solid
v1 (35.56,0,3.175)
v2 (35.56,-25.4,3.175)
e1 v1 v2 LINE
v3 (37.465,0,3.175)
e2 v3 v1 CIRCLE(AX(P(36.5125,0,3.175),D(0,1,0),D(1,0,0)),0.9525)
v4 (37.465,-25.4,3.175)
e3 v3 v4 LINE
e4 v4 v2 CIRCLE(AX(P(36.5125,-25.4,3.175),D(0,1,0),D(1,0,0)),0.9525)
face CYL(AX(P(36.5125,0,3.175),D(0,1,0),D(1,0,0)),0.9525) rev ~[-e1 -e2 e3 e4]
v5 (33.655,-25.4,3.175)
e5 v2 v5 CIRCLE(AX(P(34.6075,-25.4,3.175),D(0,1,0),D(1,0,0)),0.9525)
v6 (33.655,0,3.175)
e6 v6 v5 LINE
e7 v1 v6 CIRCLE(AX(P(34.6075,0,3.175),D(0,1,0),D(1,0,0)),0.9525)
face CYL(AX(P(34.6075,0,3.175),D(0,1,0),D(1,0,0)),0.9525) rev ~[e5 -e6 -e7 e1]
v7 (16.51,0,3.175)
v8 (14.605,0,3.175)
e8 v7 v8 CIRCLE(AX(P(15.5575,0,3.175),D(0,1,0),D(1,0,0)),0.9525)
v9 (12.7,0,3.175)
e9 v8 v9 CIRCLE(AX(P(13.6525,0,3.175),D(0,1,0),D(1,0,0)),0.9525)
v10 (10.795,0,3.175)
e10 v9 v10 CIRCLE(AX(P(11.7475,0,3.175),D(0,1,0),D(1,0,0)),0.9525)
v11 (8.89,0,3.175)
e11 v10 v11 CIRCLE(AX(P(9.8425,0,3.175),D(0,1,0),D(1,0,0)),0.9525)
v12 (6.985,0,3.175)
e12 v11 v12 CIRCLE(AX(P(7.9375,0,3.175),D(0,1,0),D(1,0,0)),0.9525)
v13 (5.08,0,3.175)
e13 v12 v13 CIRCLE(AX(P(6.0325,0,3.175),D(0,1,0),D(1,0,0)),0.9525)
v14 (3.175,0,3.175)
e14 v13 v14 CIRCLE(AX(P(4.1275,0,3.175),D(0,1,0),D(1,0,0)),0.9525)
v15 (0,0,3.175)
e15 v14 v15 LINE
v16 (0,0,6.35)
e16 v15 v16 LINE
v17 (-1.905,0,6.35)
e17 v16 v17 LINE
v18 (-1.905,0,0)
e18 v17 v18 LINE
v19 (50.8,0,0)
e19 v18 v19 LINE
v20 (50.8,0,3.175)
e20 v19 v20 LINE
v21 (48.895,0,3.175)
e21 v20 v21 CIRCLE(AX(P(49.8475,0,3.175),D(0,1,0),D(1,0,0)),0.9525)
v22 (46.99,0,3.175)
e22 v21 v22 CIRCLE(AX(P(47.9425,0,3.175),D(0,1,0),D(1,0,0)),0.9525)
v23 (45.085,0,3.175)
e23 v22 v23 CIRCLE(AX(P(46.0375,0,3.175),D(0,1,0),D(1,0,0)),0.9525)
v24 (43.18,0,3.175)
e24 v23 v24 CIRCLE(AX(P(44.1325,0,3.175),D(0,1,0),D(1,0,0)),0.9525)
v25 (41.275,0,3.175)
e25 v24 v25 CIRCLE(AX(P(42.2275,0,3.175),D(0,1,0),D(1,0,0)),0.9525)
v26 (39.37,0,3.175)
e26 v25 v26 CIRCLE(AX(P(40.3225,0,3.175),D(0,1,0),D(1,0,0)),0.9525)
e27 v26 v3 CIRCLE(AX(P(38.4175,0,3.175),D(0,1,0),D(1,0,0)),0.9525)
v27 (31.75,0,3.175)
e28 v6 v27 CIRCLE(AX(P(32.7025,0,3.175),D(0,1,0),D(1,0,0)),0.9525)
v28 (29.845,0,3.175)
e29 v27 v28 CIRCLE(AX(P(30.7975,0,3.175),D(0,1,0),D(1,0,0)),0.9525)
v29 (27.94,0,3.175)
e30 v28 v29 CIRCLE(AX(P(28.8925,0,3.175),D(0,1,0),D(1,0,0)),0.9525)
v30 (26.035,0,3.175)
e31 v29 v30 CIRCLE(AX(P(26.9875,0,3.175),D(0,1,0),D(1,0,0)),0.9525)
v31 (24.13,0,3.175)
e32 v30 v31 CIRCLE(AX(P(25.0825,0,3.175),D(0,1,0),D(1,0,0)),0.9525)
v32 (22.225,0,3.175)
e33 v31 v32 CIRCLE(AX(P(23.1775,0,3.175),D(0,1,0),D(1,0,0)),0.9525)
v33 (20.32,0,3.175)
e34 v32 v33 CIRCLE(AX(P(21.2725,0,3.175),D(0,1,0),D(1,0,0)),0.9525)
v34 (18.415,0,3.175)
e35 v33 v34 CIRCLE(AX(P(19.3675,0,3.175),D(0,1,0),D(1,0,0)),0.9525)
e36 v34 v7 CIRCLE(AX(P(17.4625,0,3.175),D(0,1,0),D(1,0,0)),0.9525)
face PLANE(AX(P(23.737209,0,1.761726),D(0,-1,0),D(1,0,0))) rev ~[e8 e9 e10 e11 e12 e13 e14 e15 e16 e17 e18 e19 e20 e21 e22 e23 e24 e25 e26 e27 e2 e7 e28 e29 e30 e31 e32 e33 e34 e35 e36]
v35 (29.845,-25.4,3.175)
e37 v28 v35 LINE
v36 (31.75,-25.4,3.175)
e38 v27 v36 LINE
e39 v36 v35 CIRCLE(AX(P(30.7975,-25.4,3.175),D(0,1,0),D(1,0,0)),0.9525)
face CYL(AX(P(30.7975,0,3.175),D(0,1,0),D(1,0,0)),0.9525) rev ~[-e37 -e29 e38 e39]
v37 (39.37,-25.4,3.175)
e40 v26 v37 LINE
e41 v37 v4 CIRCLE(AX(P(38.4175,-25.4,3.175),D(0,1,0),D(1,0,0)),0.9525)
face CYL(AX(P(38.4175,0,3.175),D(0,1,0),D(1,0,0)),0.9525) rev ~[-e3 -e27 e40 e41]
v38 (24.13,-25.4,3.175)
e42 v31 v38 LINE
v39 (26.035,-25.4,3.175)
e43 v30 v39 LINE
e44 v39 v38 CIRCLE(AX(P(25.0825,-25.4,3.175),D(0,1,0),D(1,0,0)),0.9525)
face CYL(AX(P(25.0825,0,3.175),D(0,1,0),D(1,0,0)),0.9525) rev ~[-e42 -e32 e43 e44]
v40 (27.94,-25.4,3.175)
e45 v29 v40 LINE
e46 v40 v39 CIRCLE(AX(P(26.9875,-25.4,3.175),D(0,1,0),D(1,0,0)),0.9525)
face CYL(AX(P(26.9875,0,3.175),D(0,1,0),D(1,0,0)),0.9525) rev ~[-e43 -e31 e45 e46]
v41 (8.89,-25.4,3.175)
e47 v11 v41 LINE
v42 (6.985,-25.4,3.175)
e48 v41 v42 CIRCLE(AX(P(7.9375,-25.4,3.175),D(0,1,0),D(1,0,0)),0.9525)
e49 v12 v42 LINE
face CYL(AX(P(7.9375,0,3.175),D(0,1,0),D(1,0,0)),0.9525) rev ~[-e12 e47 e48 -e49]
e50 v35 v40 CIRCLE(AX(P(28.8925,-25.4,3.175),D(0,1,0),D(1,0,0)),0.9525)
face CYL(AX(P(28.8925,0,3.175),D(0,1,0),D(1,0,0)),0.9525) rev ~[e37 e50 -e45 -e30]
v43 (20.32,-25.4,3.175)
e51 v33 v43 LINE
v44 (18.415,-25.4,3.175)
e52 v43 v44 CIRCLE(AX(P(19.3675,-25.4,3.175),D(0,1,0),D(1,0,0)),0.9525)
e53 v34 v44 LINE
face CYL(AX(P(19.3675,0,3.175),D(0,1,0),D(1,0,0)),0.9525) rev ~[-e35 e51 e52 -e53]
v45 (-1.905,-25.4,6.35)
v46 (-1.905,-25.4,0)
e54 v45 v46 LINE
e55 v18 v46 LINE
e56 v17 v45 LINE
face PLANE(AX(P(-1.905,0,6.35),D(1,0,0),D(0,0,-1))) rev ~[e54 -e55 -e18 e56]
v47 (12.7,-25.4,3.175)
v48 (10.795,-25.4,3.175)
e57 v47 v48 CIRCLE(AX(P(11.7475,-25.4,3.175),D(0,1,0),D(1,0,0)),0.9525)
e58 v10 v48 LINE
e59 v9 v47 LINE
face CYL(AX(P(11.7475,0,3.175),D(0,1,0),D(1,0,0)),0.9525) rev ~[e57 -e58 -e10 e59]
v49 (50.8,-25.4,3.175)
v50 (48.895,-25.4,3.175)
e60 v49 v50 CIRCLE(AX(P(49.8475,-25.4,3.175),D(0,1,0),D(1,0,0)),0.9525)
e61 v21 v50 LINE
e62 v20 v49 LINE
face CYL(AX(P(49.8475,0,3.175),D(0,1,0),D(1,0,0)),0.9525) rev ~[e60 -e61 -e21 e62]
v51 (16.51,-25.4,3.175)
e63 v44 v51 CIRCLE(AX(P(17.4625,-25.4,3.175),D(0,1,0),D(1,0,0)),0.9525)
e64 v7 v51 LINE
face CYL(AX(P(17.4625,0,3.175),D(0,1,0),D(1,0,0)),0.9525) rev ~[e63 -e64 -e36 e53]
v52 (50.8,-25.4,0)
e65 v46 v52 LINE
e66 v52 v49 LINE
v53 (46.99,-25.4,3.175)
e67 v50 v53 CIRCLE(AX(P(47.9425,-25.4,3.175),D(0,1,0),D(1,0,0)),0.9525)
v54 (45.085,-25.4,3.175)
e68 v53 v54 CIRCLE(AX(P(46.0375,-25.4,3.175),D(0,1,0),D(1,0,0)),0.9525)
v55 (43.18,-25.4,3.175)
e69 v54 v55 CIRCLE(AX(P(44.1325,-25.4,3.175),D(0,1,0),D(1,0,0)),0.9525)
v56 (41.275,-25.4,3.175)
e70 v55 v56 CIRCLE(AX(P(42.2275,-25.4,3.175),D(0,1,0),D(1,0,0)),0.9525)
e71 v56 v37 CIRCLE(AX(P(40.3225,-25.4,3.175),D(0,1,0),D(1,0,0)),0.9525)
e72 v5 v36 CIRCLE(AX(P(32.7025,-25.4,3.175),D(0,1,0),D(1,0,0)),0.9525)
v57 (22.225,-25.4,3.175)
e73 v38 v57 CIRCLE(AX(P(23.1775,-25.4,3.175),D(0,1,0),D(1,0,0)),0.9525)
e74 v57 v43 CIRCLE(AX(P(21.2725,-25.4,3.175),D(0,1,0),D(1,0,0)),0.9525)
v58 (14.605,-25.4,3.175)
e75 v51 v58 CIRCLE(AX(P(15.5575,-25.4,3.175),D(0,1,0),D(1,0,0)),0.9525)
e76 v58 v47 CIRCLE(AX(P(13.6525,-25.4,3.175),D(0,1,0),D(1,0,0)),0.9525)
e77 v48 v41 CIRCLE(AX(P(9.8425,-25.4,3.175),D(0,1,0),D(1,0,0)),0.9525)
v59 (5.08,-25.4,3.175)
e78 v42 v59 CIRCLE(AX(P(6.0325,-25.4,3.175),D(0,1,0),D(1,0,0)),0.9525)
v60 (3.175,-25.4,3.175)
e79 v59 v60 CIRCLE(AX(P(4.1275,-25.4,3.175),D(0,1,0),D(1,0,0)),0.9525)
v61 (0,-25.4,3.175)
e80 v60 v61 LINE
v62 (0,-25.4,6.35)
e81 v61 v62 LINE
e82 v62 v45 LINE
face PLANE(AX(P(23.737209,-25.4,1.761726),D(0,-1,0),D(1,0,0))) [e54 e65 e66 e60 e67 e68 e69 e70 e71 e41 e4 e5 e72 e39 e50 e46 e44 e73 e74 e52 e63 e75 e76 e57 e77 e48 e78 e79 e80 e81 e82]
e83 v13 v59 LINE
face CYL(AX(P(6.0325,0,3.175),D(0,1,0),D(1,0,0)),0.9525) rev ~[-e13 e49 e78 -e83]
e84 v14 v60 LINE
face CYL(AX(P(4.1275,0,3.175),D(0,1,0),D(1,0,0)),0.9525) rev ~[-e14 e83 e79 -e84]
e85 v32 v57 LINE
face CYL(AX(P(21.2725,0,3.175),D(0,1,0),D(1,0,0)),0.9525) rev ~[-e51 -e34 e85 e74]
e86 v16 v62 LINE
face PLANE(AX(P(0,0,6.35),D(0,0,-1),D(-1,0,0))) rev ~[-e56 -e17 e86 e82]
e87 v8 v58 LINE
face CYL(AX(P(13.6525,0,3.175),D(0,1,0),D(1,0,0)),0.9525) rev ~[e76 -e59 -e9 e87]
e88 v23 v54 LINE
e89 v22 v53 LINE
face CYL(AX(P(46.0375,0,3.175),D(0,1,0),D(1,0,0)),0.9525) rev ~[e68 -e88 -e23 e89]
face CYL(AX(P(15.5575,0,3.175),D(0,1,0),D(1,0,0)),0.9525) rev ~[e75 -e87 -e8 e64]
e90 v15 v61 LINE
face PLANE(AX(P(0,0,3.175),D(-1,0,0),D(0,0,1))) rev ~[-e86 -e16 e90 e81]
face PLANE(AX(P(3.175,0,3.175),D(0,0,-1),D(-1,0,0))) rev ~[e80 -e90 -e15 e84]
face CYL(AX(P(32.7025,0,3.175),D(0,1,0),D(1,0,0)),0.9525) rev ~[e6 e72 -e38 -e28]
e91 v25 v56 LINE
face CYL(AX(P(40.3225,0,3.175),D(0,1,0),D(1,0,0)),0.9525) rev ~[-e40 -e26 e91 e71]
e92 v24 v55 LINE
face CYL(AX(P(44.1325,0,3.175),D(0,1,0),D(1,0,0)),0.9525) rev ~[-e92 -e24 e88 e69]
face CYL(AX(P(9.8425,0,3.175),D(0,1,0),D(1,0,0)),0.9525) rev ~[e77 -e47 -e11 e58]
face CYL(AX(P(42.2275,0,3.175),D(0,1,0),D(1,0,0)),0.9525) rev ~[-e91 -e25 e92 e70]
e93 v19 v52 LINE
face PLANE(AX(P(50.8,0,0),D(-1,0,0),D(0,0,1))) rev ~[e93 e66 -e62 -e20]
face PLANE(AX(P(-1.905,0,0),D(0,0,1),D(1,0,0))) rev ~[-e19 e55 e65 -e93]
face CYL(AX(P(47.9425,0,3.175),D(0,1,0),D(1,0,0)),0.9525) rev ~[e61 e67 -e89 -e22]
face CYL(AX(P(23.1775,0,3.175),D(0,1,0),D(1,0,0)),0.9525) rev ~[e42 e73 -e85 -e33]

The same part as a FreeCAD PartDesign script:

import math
import FreeCAD as App
import Part
import Sketcher
from FreeCAD import Vector
Q = App.Units.Quantity

doc = App.newDocument("Part")
body = doc.addObject("PartDesign::Body", "Body")

# Sketch on XZ plane
sketch1 = body.newObject("Sketcher::SketchObject", "Sketch")
sketch1.AttachmentSupport = (doc.getObject("XZ_Plane"), [""])
sketch1.MapMode = "FlatFace"
sketch1.addGeometry([
    Part.LineSegment(Vector(-1.9, 0, 0), Vector(50.8, 0, 0)),  # 0
    Part.LineSegment(Vector(50.8, 0, 0), Vector(50.8, 3.2, 0)),  # 1
    Part.ArcOfCircle(Part.Circle(Vector(49.8, 3.2, 0), Vector(0, 0, 1), 1), math.radians(180), math.radians(360)),  # 2
    Part.ArcOfCircle(Part.Circle(Vector(47.9, 3.2, 0), Vector(0, 0, 1), 1), math.radians(180), math.radians(360)),  # 3
    Part.ArcOfCircle(Part.Circle(Vector(46, 3.2, 0), Vector(0, 0, 1), 1), math.radians(180), math.radians(360)),  # 4
    Part.ArcOfCircle(Part.Circle(Vector(44.1, 3.2, 0), Vector(0, 0, 1), 1), math.radians(180), math.radians(360)),  # 5
    Part.ArcOfCircle(Part.Circle(Vector(42.2, 3.2, 0), Vector(0, 0, 1), 1), math.radians(180), math.radians(360)),  # 6
    Part.ArcOfCircle(Part.Circle(Vector(40.3, 3.2, 0), Vector(0, 0, 1), 1), math.radians(180), math.radians(360)),  # 7
    Part.ArcOfCircle(Part.Circle(Vector(38.4, 3.2, 0), Vector(0, 0, 1), 1), math.radians(180), math.radians(360)),  # 8
    Part.ArcOfCircle(Part.Circle(Vector(36.5, 3.2, 0), Vector(0, 0, 1), 1), math.radians(180), math.radians(360)),  # 9
    Part.ArcOfCircle(Part.Circle(Vector(34.6, 3.2, 0), Vector(0, 0, 1), 1), math.radians(180), math.radians(360)),  # 10
    Part.ArcOfCircle(Part.Circle(Vector(32.7, 3.2, 0), Vector(0, 0, 1), 1), math.radians(180), math.radians(360)),  # 11
    Part.ArcOfCircle(Part.Circle(Vector(30.8, 3.2, 0), Vector(0, 0, 1), 1), math.radians(180), math.radians(360)),  # 12
    Part.ArcOfCircle(Part.Circle(Vector(28.9, 3.2, 0), Vector(0, 0, 1), 1), math.radians(180), math.radians(360)),  # 13
    Part.ArcOfCircle(Part.Circle(Vector(27, 3.2, 0), Vector(0, 0, 1), 1), math.radians(180), math.radians(360)),  # 14
    Part.ArcOfCircle(Part.Circle(Vector(25.1, 3.2, 0), Vector(0, 0, 1), 1), math.radians(180), math.radians(360)),  # 15
    Part.ArcOfCircle(Part.Circle(Vector(23.2, 3.2, 0), Vector(0, 0, 1), 1), math.radians(180), math.radians(360)),  # 16
    Part.ArcOfCircle(Part.Circle(Vector(21.3, 3.2, 0), Vector(0, 0, 1), 1), math.radians(180), math.radians(360)),  # 17
    Part.ArcOfCircle(Part.Circle(Vector(19.4, 3.2, 0), Vector(0, 0, 1), 1), math.radians(180), math.radians(360)),  # 18
    Part.ArcOfCircle(Part.Circle(Vector(17.5, 3.2, 0), Vector(0, 0, 1), 1), math.radians(180), math.radians(360)),  # 19
    Part.ArcOfCircle(Part.Circle(Vector(15.6, 3.2, 0), Vector(0, 0, 1), 1), math.radians(180), math.radians(360)),  # 20
    Part.ArcOfCircle(Part.Circle(Vector(13.7, 3.2, 0), Vector(0, 0, 1), 1), math.radians(180), math.radians(360)),  # 21
    Part.ArcOfCircle(Part.Circle(Vector(11.7, 3.2, 0), Vector(0, 0, 1), 1), math.radians(180), math.radians(360)),  # 22
    Part.ArcOfCircle(Part.Circle(Vector(9.8, 3.2, 0), Vector(0, 0, 1), 1), math.radians(180), math.radians(360)),  # 23
    Part.ArcOfCircle(Part.Circle(Vector(7.9, 3.2, 0), Vector(0, 0, 1), 1), math.radians(180), math.radians(360)),  # 24
    Part.ArcOfCircle(Part.Circle(Vector(6, 3.2, 0), Vector(0, 0, 1), 1), math.radians(180), math.radians(360)),  # 25
    Part.ArcOfCircle(Part.Circle(Vector(4.1, 3.2, 0), Vector(0, 0, 1), 1), math.radians(180), math.radians(360)),  # 26
    Part.LineSegment(Vector(3.2, 3.2, 0), Vector(0, 3.2, 0)),  # 27
    Part.LineSegment(Vector(0, 3.2, 0), Vector(0, 6.3, 0)),  # 28
    Part.LineSegment(Vector(0, 6.3, 0), Vector(-1.9, 6.3, 0)),  # 29
    Part.LineSegment(Vector(-1.9, 6.3, 0), Vector(-1.9, 0, 0)),  # 30
], False)
sketch1.addConstraint([
    Sketcher.Constraint("Coincident", 0, 2, 1, 1),
    Sketcher.Constraint("Tangent", 1, 2, 2, 2),
    Sketcher.Constraint("Tangent", 2, 1, 3, 2),
    Sketcher.Constraint("Tangent", 3, 1, 4, 2),
    Sketcher.Constraint("Tangent", 4, 1, 5, 2),
    Sketcher.Constraint("Tangent", 5, 1, 6, 2),
    Sketcher.Constraint("Tangent", 6, 1, 7, 2),
    Sketcher.Constraint("Tangent", 7, 1, 8, 2),
    Sketcher.Constraint("Tangent", 8, 1, 9, 2),
    Sketcher.Constraint("Tangent", 9, 1, 10, 2),
    Sketcher.Constraint("Tangent", 10, 1, 11, 2),
    Sketcher.Constraint("Tangent", 11, 1, 12, 2),
    Sketcher.Constraint("Tangent", 12, 1, 13, 2),
    Sketcher.Constraint("Tangent", 13, 1, 14, 2),
    Sketcher.Constraint("Tangent", 14, 1, 15, 2),
    Sketcher.Constraint("Tangent", 15, 1, 16, 2),
    Sketcher.Constraint("Tangent", 16, 1, 17, 2),
    Sketcher.Constraint("Tangent", 17, 1, 18, 2),
    Sketcher.Constraint("Tangent", 18, 1, 19, 2),
    Sketcher.Constraint("Tangent", 19, 1, 20, 2),
    Sketcher.Constraint("Tangent", 20, 1, 21, 2),
    Sketcher.Constraint("Tangent", 21, 1, 22, 2),
    Sketcher.Constraint("Tangent", 22, 1, 23, 2),
    Sketcher.Constraint("Tangent", 23, 1, 24, 2),
    Sketcher.Constraint("Tangent", 24, 1, 25, 2),
    Sketcher.Constraint("Tangent", 25, 1, 26, 2),
    Sketcher.Constraint("Coincident", 26, 1, 27, 1),
    Sketcher.Constraint("Coincident", 27, 2, 28, 1),
    Sketcher.Constraint("Coincident", 28, 2, 29, 1),
    Sketcher.Constraint("Coincident", 29, 2, 30, 1),
    Sketcher.Constraint("Coincident", 30, 2, 0, 1),
    Sketcher.Constraint("Horizontal", 0),
    Sketcher.Constraint("Vertical", 1),
    Sketcher.Constraint("Horizontal", 27),
    Sketcher.Constraint("Vertical", 28),
    Sketcher.Constraint("Horizontal", 29),
    Sketcher.Constraint("Vertical", 30),
    Sketcher.Constraint("Equal", 2, 3),
    Sketcher.Constraint("Equal", 3, 4),
    Sketcher.Constraint("Equal", 4, 5),
    Sketcher.Constraint("Equal", 5, 6),
    Sketcher.Constraint("Equal", 6, 7),
    Sketcher.Constraint("Equal", 7, 8),
    Sketcher.Constraint("Equal", 8, 9),
    Sketcher.Constraint("Equal", 9, 10),
    Sketcher.Constraint("Equal", 10, 11),
    Sketcher.Constraint("Equal", 11, 12),
    Sketcher.Constraint("Equal", 12, 13),
    Sketcher.Constraint("Equal", 13, 14),
    Sketcher.Constraint("Equal", 14, 15),
    Sketcher.Constraint("Equal", 15, 16),
    Sketcher.Constraint("Equal", 16, 17),
    Sketcher.Constraint("Equal", 17, 18),
    Sketcher.Constraint("Equal", 18, 19),
    Sketcher.Constraint("Equal", 19, 20),
    Sketcher.Constraint("Equal", 20, 21),
    Sketcher.Constraint("Equal", 21, 22),
    Sketcher.Constraint("Equal", 22, 23),
    Sketcher.Constraint("Equal", 23, 24),
    Sketcher.Constraint("Equal", 24, 25),
    Sketcher.Constraint("Equal", 25, 26),
    Sketcher.Constraint("PointOnObject", 0, 2, -1),
    Sketcher.Constraint("PointOnObject", 27, 2, -2),
    Sketcher.Constraint("Horizontal", 2, 3, 3, 3),
    Sketcher.Constraint("Horizontal", 3, 3, 4, 3),
    Sketcher.Constraint("Horizontal", 4, 3, 5, 3),
    Sketcher.Constraint("Horizontal", 5, 3, 6, 3),
    Sketcher.Constraint("Horizontal", 6, 3, 7, 3),
    Sketcher.Constraint("Horizontal", 7, 3, 8, 3),
    Sketcher.Constraint("Horizontal", 8, 3, 9, 3),
    Sketcher.Constraint("Horizontal", 9, 3, 10, 3),
    Sketcher.Constraint("Horizontal", 10, 3, 11, 3),
    Sketcher.Constraint("Horizontal", 11, 3, 12, 3),
    Sketcher.Constraint("Horizontal", 12, 3, 13, 3),
    Sketcher.Constraint("Horizontal", 13, 3, 14, 3),
    Sketcher.Constraint("Horizontal", 14, 3, 15, 3),
    Sketcher.Constraint("Horizontal", 15, 3, 16, 3),
    Sketcher.Constraint("Horizontal", 16, 3, 17, 3),
    Sketcher.Constraint("Horizontal", 17, 3, 18, 3),
    Sketcher.Constraint("Horizontal", 18, 3, 19, 3),
    Sketcher.Constraint("Horizontal", 19, 3, 20, 3),
    Sketcher.Constraint("Horizontal", 20, 3, 21, 3),
    Sketcher.Constraint("Horizontal", 21, 3, 22, 3),
    Sketcher.Constraint("Horizontal", 22, 3, 23, 3),
    Sketcher.Constraint("Horizontal", 23, 3, 24, 3),
    Sketcher.Constraint("Horizontal", 24, 3, 25, 3),
    Sketcher.Constraint("Horizontal", 25, 3, 26, 3),
    Sketcher.Constraint("Horizontal", 25, 1, 26, 1),
    Sketcher.Constraint("Equal", 27, 1),
    Sketcher.Constraint("Equal", 1, 28),
    Sketcher.Constraint("DistanceX", -1, 1, 0, 2, Q("2 in")),
    Sketcher.Constraint("DistanceY", 30, 2, 30, 1, Q("0.25 in")),
    Sketcher.Constraint("DistanceX", 29, 2, 26, 1, Q("0.2 in")),
])
pad1 = body.newObject("PartDesign::Pad", "Pad")
pad1.Profile = sketch1
pad1.Length = Q("1 in")

doc.recompute()
